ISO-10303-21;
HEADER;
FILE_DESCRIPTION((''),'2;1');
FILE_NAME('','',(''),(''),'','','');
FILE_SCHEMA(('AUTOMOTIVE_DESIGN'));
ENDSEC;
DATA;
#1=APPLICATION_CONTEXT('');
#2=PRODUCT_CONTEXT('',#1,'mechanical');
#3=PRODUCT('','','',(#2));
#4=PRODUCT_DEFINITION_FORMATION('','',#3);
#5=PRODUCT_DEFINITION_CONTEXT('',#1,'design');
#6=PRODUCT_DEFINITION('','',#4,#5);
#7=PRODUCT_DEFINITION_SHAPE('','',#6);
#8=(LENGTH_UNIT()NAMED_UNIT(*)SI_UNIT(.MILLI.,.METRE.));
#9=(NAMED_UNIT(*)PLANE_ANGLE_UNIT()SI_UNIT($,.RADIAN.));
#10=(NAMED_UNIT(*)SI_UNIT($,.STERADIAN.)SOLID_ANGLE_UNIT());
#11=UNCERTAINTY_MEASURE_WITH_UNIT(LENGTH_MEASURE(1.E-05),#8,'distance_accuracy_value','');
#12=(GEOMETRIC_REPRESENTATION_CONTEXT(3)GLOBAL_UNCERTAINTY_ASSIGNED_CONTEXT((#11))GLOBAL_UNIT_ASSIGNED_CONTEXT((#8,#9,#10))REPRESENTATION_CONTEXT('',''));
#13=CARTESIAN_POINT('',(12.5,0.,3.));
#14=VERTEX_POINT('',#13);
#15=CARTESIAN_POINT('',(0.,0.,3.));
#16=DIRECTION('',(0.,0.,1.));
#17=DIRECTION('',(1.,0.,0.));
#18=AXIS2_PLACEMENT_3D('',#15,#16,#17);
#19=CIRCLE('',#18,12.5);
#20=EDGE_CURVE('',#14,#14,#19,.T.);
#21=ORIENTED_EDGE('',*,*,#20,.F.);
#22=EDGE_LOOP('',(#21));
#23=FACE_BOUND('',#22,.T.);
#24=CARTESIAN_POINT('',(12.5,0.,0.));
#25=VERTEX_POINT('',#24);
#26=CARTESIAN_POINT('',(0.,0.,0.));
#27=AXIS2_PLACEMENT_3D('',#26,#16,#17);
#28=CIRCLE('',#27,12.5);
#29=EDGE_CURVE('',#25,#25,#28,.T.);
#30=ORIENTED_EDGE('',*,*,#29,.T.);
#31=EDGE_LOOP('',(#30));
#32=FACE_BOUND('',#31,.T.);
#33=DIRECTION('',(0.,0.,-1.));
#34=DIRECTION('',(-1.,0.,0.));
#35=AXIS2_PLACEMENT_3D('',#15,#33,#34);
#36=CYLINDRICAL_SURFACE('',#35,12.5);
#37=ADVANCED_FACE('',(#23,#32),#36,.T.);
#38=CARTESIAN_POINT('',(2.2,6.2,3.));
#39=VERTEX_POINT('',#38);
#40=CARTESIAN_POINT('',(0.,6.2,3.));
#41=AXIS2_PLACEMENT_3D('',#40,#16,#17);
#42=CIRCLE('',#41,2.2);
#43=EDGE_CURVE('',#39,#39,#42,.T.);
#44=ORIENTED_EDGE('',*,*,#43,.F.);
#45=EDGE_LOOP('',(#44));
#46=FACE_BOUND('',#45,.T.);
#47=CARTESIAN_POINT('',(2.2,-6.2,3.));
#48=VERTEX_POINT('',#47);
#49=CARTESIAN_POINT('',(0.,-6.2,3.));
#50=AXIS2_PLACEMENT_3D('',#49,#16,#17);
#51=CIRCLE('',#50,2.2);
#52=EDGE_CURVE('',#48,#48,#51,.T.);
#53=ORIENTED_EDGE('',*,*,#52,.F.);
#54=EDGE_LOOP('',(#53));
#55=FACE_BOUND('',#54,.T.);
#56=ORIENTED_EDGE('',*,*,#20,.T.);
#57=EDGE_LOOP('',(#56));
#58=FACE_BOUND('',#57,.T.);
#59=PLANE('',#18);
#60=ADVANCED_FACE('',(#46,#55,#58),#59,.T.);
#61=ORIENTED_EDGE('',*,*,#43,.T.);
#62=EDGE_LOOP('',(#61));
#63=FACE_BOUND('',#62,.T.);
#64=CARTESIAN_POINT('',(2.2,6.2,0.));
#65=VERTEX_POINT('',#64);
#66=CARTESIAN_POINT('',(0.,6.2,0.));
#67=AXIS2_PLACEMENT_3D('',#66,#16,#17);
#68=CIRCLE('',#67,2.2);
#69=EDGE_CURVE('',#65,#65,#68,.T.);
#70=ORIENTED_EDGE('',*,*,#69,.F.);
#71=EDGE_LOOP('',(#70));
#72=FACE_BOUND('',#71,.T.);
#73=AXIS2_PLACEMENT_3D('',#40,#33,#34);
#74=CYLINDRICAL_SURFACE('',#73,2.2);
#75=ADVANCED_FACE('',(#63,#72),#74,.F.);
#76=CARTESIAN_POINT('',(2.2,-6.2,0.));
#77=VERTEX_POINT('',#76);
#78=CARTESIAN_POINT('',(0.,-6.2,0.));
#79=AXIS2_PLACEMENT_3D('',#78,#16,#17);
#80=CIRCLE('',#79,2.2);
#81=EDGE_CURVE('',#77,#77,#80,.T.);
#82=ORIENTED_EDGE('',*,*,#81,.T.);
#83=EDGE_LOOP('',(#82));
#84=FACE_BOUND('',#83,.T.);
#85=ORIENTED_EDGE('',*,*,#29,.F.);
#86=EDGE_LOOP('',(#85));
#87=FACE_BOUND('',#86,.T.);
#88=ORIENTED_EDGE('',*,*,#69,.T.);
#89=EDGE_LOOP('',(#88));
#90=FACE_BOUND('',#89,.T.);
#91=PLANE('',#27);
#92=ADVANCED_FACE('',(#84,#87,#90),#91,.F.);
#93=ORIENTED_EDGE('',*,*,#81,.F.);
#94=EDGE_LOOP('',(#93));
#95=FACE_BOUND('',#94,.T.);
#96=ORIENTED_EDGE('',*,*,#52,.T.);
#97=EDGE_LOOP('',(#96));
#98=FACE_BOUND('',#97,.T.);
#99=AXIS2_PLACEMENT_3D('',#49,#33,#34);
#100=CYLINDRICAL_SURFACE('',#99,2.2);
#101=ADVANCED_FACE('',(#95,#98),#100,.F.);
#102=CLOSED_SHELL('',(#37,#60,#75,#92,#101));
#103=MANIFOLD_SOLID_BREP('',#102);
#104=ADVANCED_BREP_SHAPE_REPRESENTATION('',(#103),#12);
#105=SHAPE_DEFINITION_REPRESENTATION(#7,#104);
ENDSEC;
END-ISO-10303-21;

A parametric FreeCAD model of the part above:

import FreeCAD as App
import Part
import Sketcher

V = App.Vector
Q = App.Units.Quantity

doc = App.newDocument("Part")
body = doc.addObject("PartDesign::Body", "Body")

sketch1 = body.newObject("Sketcher::SketchObject", "Sketch")
sketch1.AttachmentSupport = (doc.getObject("XY_Plane"), [""])
sketch1.MapMode = "FlatFace"
sketch1.addGeometry([
    Part.Circle(V(0, 0, 0), V(0, 0, 1), 12.5),
    Part.Circle(V(0, -6.2, 0), V(0, 0, 1), 2.2),
    Part.Circle(V(0, 6.2, 0), V(0, 0, 1), 2.2),
], False)
sketch1.addConstraint([
    Sketcher.Constraint("Coincident", 0, 3, -1, 1),
    Sketcher.Constraint("Equal", 1, 2),
    Sketcher.Constraint("Symmetric", 1, 3, 2, 3, -1, 1),
    Sketcher.Constraint("PointOnObject", 1, 3, -2),
    Sketcher.Constraint("Diameter", 0, Q("25 mm")),
    Sketcher.Constraint("Diameter", 1, Q("4.4 mm")),
    Sketcher.Constraint("DistanceY", 1, 3, -1, 1, Q("6.2 mm")),
])
pad1 = body.newObject("PartDesign::Pad", "Pad")
pad1.Profile = sketch1
pad1.Length = 3

doc.recompute()
